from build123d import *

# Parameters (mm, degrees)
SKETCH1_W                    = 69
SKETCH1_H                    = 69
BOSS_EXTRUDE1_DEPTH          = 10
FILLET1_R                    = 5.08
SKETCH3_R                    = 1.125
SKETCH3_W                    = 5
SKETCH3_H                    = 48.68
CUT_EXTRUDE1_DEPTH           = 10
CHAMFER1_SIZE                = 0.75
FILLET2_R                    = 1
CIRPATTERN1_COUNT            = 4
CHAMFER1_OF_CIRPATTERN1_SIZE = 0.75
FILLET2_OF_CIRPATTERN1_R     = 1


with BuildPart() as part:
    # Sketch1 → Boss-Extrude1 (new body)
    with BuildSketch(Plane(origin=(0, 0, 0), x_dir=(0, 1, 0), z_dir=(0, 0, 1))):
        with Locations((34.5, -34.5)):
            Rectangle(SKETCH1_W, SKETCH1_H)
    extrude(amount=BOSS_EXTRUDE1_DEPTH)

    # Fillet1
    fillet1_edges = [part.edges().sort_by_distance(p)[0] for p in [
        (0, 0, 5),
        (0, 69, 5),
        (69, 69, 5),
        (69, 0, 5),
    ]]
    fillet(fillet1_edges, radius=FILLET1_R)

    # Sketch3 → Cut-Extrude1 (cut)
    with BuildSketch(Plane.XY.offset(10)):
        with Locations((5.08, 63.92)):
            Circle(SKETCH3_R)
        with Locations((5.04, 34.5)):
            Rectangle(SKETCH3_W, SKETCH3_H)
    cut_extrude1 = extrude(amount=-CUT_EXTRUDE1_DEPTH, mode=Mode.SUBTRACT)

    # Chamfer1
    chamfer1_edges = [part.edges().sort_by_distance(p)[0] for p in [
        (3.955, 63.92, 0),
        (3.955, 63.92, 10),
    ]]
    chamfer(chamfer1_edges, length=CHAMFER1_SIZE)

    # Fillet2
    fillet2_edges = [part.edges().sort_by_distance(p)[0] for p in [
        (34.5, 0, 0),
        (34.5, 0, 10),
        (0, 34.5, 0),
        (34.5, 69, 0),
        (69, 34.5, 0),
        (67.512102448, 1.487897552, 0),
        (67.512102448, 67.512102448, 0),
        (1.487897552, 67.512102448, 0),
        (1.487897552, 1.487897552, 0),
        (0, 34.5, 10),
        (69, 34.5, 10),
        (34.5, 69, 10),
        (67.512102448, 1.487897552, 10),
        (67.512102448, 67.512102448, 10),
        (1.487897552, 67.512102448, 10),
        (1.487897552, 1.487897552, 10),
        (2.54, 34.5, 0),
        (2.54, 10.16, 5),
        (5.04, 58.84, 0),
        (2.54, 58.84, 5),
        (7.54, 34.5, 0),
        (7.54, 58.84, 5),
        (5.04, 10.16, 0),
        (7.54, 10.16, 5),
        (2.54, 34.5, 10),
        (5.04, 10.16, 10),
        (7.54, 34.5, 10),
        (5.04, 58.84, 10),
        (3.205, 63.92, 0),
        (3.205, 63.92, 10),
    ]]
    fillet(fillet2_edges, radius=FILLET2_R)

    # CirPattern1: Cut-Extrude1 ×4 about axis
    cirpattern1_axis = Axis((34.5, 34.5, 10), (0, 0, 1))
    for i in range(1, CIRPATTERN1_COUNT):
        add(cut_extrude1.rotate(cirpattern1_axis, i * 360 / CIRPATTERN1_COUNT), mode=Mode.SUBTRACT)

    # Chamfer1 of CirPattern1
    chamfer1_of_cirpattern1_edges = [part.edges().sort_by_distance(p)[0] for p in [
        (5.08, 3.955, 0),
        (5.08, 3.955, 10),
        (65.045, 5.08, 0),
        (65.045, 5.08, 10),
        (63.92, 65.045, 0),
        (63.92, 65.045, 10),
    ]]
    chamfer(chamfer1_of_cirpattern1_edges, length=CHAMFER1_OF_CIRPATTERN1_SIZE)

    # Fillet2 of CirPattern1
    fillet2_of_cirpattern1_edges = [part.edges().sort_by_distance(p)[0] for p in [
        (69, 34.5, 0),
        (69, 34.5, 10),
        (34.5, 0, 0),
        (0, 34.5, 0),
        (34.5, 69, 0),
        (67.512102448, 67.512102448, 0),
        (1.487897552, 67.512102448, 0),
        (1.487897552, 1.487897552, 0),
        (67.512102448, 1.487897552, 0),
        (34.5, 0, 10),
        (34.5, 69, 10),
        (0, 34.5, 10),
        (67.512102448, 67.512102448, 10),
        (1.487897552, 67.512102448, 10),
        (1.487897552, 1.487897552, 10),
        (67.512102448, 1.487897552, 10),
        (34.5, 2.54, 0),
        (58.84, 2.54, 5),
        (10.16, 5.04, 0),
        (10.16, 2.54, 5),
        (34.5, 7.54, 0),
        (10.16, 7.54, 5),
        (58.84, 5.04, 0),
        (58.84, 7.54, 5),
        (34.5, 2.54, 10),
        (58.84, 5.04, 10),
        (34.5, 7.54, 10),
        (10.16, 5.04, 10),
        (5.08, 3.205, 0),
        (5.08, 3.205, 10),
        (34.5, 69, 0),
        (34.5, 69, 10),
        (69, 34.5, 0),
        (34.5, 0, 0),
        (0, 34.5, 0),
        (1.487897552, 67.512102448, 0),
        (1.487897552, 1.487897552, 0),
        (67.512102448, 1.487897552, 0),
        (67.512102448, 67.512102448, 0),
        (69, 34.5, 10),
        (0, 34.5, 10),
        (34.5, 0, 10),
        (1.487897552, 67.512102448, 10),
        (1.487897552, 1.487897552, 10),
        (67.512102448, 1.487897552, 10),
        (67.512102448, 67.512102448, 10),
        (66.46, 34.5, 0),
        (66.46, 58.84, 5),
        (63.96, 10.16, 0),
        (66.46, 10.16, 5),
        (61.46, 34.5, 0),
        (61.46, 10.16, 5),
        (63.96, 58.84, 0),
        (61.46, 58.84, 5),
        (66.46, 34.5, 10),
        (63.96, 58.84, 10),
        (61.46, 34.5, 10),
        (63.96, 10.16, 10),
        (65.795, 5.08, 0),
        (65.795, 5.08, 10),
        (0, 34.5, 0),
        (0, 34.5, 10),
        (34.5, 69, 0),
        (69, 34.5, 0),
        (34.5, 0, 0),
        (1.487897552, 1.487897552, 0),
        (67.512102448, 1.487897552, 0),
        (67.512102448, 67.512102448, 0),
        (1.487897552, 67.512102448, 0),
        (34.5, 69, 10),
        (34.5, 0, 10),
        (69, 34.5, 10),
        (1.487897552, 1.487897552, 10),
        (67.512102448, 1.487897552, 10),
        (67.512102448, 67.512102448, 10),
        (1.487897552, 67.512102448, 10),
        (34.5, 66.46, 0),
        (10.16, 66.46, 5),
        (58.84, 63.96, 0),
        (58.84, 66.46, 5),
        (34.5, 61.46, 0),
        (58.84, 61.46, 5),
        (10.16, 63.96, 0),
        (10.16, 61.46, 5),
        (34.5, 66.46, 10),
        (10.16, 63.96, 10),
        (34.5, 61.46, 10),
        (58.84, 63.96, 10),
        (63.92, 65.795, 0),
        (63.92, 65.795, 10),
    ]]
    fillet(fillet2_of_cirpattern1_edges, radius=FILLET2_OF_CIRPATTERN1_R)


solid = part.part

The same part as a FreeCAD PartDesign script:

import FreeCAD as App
import Part
import Sketcher
from FreeCAD import Vector


def edges_at(feature, points):
    """Names of the edges that pass closest to the given points."""
    edges = feature.Shape.Edges
    near = lambda p: min(range(len(edges)), key=lambda i: edges[i].distToShape(Part.Vertex(*p))[0])
    return sorted({f"Edge{near(p) + 1}" for p in points})

doc = App.newDocument("Part")
body = doc.addObject("PartDesign::Body", "Body")

sketch1 = doc.addObject("Sketcher::SketchObject", "Sketch")
body.addObject(sketch1)
sketch1.AttachmentSupport = (doc.XY_Plane, [""])
sketch1.MapMode = "FlatFace"
sketch1.addGeometry(Part.LineSegment(Vector(0, 0, 0), Vector(69, 0, 0)), False)
sketch1.addGeometry(Part.LineSegment(Vector(69, 0, 0), Vector(69, 69, 0)), False)
sketch1.addGeometry(Part.LineSegment(Vector(69, 69, 0), Vector(0, 69, 0)), False)
sketch1.addGeometry(Part.LineSegment(Vector(0, 69, 0), Vector(0, 0, 0)), False)
sketch1.addConstraint(Sketcher.Constraint("Coincident", 0, 2, 1, 1))
sketch1.addConstraint(Sketcher.Constraint("Coincident", 1, 2, 2, 1))
sketch1.addConstraint(Sketcher.Constraint("Coincident", 2, 2, 3, 1))
sketch1.addConstraint(Sketcher.Constraint("Coincident", 3, 2, 0, 1))
sketch1.addConstraint(Sketcher.Constraint("Horizontal", 0))
sketch1.addConstraint(Sketcher.Constraint("Vertical", 1))
sketch1.addConstraint(Sketcher.Constraint("Horizontal", 2))
sketch1.addConstraint(Sketcher.Constraint("Vertical", 3))
sketch1.addConstraint(Sketcher.Constraint("Coincident", 3, 2, -1, 1))
sketch1.addConstraint(Sketcher.Constraint("Equal", 2, 1))
sketch1.addConstraint(Sketcher.Constraint("DistanceX", 0, 1, 0, 2, 69.0))
pad1 = doc.addObject("PartDesign::Pad", "Pad")
body.addObject(pad1)
pad1.Profile = sketch1
pad1.Length = 10
doc.recompute()

fillet = doc.addObject("PartDesign::Fillet", "Fillet")
body.addObject(fillet)
fillet.Base = (pad1, edges_at(pad1, [
    (0, 0, 5),
    (0, 69, 5),
    (69, 69, 5),
    (69, 0, 5),
]))
fillet.Radius = 5.08

sketch2 = doc.addObject("Sketcher::SketchObject", "Sketch001")
body.addObject(sketch2)
sketch2.AttachmentSupport = (doc.XY_Plane, [""])
sketch2.MapMode = "FlatFace"
sketch2.AttachmentOffset = App.Placement(Vector(0, 0, 10), App.Rotation())
sketch2.addGeometry(Part.Circle(Vector(5.1, 63.9, 0), Vector(0, 0, 1), 1.1), False)
sketch2.addGeometry(Part.LineSegment(Vector(2.5, 58.8, 0), Vector(2.5, 10.2, 0)), False)
sketch2.addGeometry(Part.LineSegment(Vector(2.5, 10.2, 0), Vector(7.5, 10.2, 0)), False)
sketch2.addGeometry(Part.LineSegment(Vector(7.5, 10.2, 0), Vector(7.5, 58.8, 0)), False)
sketch2.addGeometry(Part.LineSegment(Vector(7.5, 58.8, 0), Vector(2.5, 58.8, 0)), False)
sketch2.addConstraint(Sketcher.Constraint("Coincident", 1, 2, 2, 1))
sketch2.addConstraint(Sketcher.Constraint("Coincident", 2, 2, 3, 1))
sketch2.addConstraint(Sketcher.Constraint("Coincident", 3, 2, 4, 1))
sketch2.addConstraint(Sketcher.Constraint("Coincident", 4, 2, 1, 1))
sketch2.addConstraint(Sketcher.Constraint("Vertical", 1))
sketch2.addConstraint(Sketcher.Constraint("Horizontal", 2))
sketch2.addConstraint(Sketcher.Constraint("Vertical", 3))
sketch2.addConstraint(Sketcher.Constraint("Horizontal", 4))
sketch2.addConstraint(Sketcher.Constraint("Diameter", 0, 2.25))
sketch2.addConstraint(Sketcher.Constraint("DistanceX", 2, 1, 2, 2, 5.0))
sketch2.addConstraint(Sketcher.Constraint("DistanceY", 1, 2, 1, 1, 48.68))
sketch2.addConstraint(Sketcher.Constraint("DistanceX", -1, 1, 0, 3, 5.08))
sketch2.addConstraint(Sketcher.Constraint("DistanceY", -1, 1, 0, 3, 63.92))
sketch2.addConstraint(Sketcher.Constraint("DistanceX", -1, 1, 1, 2, 2.54))
sketch2.addConstraint(Sketcher.Constraint("DistanceY", -1, 1, 1, 2, 10.16))
pocket1 = doc.addObject("PartDesign::Pocket", "Pocket")
body.addObject(pocket1)
pocket1.Profile = sketch2
pocket1.Length = 10
doc.recompute()

chamfer = doc.addObject("PartDesign::Chamfer", "Chamfer")
body.addObject(chamfer)
chamfer.Base = (pocket1, edges_at(pocket1, [(3.955, 63.92, 0), (3.955, 63.92, 10)]))
chamfer.Size = 0.75
doc.recompute()

fillet2 = doc.addObject("PartDesign::Fillet", "Fillet001")
body.addObject(fillet2)
fillet2.Base = (chamfer, edges_at(chamfer, [
    (34.5, 0, 0),
    (34.5, 0, 10),
    (0, 34.5, 0),
    (34.5, 69, 0),
    (69, 34.5, 0),
    (67.512, 1.488, 0),
    (67.512, 67.512, 0),
    (1.488, 67.512, 0),
    (1.488, 1.488, 0),
    (0, 34.5, 10),
    (69, 34.5, 10),
    (34.5, 69, 10),
    (67.512, 1.488, 10),
    (67.512, 67.512, 10),
    (1.488, 67.512, 10),
    (1.488, 1.488, 10),
    (2.54, 34.5, 0),
    (2.54, 10.16, 5),
    (5.04, 58.84, 0),
    (2.54, 58.84, 5),
    (7.54, 34.5, 0),
    (7.54, 58.84, 5),
    (5.04, 10.16, 0),
    (7.54, 10.16, 5),
    (2.54, 34.5, 10),
    (5.04, 10.16, 10),
    (7.54, 34.5, 10),
    (5.04, 58.84, 10),
    (3.205, 63.92, 0),
    (3.205, 63.92, 10),
]))
fillet2.Radius = 1
doc.recompute()

datumline = doc.addObject("PartDesign::Line", "DatumLine")
body.addObject(datumline)
datumline.Placement = App.Placement(Vector(34.5, 34.5, 0), App.Rotation(Vector(0, 0, 1), Vector(0, 0, 1)))
polarpattern = doc.addObject("PartDesign::PolarPattern", "PolarPattern")
body.addObject(polarpattern)
polarpattern.Originals = [pocket1]
polarpattern.Axis = (datumline, [""])
polarpattern.Angle = 360
polarpattern.Occurrences = 4
body.Tip = polarpattern
doc.recompute()

chamfer2 = doc.addObject("PartDesign::Chamfer", "Chamfer001")
body.addObject(chamfer2)
chamfer2.Base = (polarpattern, edges_at(polarpattern, [
    (5.08, 3.955, 0),
    (5.08, 3.955, 10),
    (65.045, 5.08, 0),
    (65.045, 5.08, 10),
    (63.92, 65.045, 0),
    (63.92, 65.045, 10),
]))
chamfer2.Size = 0.75
doc.recompute()

fillet3 = doc.addObject("PartDesign::Fillet", "Fillet002")
body.addObject(fillet3)
fillet3.Base = (chamfer2, edges_at(chamfer2, [
    (69, 34.5, 1),
    (69, 34.5, 9),
    (34.5, 0, 1),
    (0, 34.5, 1),
    (34.5, 69, 1),
    (66.805, 66.805, 0),
    (2.195, 66.805, 0),
    (2.195, 2.195, 0),
    (66.805, 2.195, 0),
    (34.5, 1, 10),
    (34.5, 69, 9),
    (1, 34.5, 10),
    (66.805, 66.805, 10),
    (2.195, 66.805, 10),
    (2.195, 2.195, 10),
    (66.805, 2.195, 10),
    (34.5, 2.54, 0),
    (58.84, 2.54, 5),
    (10.16, 5.04, 0),
    (10.16, 2.54, 5),
    (34.5, 7.54, 0),
    (10.16, 7.54, 5),
    (58.84, 5.04, 0),
    (58.84, 7.54, 5),
    (34.5, 2.54, 10),
    (58.84, 5.04, 10),
    (34.5, 7.54, 10),
    (10.16, 5.04, 10),
    (5.08, 3.205, 0),
    (5.08, 3.205, 10),
    (34.5, 69, 1),
    (34.5, 69, 9),
    (69, 34.5, 1),
    (34.5, 0, 1),
    (0, 34.5, 1),
    (2.195, 66.805, 0),
    (2.195, 2.195, 0),
    (66.805, 2.195, 0),
    (66.805, 66.805, 0),
    (69, 34.5, 9),
    (1, 34.5, 10),
    (34.5, 1, 10),
    (2.195, 66.805, 10),
    (2.195, 2.195, 10),
    (66.805, 2.195, 10),
    (66.805, 66.805, 10),
    (66.46, 34.5, 0),
    (66.46, 58.84, 5),
    (63.96, 10.16, 0),
    (66.46, 10.16, 5),
    (61.46, 34.5, 0),
    (61.46, 10.16, 5),
    (63.96, 58.84, 0),
    (61.46, 58.84, 5),
    (66.46, 34.5, 10),
    (63.96, 58.84, 10),
    (61.46, 34.5, 10),
    (63.96, 10.16, 10),
    (65.795, 5.08, 0),
    (65.795, 5.08, 10),
    (0, 34.5, 1),
    (1, 34.5, 10),
    (34.5, 69, 1),
    (69, 34.5, 1),
    (34.5, 0, 1),
    (2.195, 2.195, 0),
    (66.805, 2.195, 0),
    (66.805, 66.805, 0),
    (2.195, 66.805, 0),
    (34.5, 69, 9),
    (34.5, 1, 10),
    (69, 34.5, 9),
    (2.195, 2.195, 10),
    (66.805, 2.195, 10),
    (66.805, 66.805, 10),
    (2.195, 66.805, 10),
    (34.5, 66.46, 0),
    (10.16, 66.46, 5),
    (58.84, 63.96, 0),
    (58.84, 66.46, 5),
    (34.5, 61.46, 0),
    (58.84, 61.46, 5),
    (10.16, 63.96, 0),
    (10.16, 61.46, 5),
    (34.5, 66.46, 10),
    (10.16, 63.96, 10),
    (34.5, 61.46, 10),
    (58.84, 63.96, 10),
    (63.92, 65.795, 0),
    (63.92, 65.795, 10),
]))
fillet3.Radius = 1

doc.recompute()
